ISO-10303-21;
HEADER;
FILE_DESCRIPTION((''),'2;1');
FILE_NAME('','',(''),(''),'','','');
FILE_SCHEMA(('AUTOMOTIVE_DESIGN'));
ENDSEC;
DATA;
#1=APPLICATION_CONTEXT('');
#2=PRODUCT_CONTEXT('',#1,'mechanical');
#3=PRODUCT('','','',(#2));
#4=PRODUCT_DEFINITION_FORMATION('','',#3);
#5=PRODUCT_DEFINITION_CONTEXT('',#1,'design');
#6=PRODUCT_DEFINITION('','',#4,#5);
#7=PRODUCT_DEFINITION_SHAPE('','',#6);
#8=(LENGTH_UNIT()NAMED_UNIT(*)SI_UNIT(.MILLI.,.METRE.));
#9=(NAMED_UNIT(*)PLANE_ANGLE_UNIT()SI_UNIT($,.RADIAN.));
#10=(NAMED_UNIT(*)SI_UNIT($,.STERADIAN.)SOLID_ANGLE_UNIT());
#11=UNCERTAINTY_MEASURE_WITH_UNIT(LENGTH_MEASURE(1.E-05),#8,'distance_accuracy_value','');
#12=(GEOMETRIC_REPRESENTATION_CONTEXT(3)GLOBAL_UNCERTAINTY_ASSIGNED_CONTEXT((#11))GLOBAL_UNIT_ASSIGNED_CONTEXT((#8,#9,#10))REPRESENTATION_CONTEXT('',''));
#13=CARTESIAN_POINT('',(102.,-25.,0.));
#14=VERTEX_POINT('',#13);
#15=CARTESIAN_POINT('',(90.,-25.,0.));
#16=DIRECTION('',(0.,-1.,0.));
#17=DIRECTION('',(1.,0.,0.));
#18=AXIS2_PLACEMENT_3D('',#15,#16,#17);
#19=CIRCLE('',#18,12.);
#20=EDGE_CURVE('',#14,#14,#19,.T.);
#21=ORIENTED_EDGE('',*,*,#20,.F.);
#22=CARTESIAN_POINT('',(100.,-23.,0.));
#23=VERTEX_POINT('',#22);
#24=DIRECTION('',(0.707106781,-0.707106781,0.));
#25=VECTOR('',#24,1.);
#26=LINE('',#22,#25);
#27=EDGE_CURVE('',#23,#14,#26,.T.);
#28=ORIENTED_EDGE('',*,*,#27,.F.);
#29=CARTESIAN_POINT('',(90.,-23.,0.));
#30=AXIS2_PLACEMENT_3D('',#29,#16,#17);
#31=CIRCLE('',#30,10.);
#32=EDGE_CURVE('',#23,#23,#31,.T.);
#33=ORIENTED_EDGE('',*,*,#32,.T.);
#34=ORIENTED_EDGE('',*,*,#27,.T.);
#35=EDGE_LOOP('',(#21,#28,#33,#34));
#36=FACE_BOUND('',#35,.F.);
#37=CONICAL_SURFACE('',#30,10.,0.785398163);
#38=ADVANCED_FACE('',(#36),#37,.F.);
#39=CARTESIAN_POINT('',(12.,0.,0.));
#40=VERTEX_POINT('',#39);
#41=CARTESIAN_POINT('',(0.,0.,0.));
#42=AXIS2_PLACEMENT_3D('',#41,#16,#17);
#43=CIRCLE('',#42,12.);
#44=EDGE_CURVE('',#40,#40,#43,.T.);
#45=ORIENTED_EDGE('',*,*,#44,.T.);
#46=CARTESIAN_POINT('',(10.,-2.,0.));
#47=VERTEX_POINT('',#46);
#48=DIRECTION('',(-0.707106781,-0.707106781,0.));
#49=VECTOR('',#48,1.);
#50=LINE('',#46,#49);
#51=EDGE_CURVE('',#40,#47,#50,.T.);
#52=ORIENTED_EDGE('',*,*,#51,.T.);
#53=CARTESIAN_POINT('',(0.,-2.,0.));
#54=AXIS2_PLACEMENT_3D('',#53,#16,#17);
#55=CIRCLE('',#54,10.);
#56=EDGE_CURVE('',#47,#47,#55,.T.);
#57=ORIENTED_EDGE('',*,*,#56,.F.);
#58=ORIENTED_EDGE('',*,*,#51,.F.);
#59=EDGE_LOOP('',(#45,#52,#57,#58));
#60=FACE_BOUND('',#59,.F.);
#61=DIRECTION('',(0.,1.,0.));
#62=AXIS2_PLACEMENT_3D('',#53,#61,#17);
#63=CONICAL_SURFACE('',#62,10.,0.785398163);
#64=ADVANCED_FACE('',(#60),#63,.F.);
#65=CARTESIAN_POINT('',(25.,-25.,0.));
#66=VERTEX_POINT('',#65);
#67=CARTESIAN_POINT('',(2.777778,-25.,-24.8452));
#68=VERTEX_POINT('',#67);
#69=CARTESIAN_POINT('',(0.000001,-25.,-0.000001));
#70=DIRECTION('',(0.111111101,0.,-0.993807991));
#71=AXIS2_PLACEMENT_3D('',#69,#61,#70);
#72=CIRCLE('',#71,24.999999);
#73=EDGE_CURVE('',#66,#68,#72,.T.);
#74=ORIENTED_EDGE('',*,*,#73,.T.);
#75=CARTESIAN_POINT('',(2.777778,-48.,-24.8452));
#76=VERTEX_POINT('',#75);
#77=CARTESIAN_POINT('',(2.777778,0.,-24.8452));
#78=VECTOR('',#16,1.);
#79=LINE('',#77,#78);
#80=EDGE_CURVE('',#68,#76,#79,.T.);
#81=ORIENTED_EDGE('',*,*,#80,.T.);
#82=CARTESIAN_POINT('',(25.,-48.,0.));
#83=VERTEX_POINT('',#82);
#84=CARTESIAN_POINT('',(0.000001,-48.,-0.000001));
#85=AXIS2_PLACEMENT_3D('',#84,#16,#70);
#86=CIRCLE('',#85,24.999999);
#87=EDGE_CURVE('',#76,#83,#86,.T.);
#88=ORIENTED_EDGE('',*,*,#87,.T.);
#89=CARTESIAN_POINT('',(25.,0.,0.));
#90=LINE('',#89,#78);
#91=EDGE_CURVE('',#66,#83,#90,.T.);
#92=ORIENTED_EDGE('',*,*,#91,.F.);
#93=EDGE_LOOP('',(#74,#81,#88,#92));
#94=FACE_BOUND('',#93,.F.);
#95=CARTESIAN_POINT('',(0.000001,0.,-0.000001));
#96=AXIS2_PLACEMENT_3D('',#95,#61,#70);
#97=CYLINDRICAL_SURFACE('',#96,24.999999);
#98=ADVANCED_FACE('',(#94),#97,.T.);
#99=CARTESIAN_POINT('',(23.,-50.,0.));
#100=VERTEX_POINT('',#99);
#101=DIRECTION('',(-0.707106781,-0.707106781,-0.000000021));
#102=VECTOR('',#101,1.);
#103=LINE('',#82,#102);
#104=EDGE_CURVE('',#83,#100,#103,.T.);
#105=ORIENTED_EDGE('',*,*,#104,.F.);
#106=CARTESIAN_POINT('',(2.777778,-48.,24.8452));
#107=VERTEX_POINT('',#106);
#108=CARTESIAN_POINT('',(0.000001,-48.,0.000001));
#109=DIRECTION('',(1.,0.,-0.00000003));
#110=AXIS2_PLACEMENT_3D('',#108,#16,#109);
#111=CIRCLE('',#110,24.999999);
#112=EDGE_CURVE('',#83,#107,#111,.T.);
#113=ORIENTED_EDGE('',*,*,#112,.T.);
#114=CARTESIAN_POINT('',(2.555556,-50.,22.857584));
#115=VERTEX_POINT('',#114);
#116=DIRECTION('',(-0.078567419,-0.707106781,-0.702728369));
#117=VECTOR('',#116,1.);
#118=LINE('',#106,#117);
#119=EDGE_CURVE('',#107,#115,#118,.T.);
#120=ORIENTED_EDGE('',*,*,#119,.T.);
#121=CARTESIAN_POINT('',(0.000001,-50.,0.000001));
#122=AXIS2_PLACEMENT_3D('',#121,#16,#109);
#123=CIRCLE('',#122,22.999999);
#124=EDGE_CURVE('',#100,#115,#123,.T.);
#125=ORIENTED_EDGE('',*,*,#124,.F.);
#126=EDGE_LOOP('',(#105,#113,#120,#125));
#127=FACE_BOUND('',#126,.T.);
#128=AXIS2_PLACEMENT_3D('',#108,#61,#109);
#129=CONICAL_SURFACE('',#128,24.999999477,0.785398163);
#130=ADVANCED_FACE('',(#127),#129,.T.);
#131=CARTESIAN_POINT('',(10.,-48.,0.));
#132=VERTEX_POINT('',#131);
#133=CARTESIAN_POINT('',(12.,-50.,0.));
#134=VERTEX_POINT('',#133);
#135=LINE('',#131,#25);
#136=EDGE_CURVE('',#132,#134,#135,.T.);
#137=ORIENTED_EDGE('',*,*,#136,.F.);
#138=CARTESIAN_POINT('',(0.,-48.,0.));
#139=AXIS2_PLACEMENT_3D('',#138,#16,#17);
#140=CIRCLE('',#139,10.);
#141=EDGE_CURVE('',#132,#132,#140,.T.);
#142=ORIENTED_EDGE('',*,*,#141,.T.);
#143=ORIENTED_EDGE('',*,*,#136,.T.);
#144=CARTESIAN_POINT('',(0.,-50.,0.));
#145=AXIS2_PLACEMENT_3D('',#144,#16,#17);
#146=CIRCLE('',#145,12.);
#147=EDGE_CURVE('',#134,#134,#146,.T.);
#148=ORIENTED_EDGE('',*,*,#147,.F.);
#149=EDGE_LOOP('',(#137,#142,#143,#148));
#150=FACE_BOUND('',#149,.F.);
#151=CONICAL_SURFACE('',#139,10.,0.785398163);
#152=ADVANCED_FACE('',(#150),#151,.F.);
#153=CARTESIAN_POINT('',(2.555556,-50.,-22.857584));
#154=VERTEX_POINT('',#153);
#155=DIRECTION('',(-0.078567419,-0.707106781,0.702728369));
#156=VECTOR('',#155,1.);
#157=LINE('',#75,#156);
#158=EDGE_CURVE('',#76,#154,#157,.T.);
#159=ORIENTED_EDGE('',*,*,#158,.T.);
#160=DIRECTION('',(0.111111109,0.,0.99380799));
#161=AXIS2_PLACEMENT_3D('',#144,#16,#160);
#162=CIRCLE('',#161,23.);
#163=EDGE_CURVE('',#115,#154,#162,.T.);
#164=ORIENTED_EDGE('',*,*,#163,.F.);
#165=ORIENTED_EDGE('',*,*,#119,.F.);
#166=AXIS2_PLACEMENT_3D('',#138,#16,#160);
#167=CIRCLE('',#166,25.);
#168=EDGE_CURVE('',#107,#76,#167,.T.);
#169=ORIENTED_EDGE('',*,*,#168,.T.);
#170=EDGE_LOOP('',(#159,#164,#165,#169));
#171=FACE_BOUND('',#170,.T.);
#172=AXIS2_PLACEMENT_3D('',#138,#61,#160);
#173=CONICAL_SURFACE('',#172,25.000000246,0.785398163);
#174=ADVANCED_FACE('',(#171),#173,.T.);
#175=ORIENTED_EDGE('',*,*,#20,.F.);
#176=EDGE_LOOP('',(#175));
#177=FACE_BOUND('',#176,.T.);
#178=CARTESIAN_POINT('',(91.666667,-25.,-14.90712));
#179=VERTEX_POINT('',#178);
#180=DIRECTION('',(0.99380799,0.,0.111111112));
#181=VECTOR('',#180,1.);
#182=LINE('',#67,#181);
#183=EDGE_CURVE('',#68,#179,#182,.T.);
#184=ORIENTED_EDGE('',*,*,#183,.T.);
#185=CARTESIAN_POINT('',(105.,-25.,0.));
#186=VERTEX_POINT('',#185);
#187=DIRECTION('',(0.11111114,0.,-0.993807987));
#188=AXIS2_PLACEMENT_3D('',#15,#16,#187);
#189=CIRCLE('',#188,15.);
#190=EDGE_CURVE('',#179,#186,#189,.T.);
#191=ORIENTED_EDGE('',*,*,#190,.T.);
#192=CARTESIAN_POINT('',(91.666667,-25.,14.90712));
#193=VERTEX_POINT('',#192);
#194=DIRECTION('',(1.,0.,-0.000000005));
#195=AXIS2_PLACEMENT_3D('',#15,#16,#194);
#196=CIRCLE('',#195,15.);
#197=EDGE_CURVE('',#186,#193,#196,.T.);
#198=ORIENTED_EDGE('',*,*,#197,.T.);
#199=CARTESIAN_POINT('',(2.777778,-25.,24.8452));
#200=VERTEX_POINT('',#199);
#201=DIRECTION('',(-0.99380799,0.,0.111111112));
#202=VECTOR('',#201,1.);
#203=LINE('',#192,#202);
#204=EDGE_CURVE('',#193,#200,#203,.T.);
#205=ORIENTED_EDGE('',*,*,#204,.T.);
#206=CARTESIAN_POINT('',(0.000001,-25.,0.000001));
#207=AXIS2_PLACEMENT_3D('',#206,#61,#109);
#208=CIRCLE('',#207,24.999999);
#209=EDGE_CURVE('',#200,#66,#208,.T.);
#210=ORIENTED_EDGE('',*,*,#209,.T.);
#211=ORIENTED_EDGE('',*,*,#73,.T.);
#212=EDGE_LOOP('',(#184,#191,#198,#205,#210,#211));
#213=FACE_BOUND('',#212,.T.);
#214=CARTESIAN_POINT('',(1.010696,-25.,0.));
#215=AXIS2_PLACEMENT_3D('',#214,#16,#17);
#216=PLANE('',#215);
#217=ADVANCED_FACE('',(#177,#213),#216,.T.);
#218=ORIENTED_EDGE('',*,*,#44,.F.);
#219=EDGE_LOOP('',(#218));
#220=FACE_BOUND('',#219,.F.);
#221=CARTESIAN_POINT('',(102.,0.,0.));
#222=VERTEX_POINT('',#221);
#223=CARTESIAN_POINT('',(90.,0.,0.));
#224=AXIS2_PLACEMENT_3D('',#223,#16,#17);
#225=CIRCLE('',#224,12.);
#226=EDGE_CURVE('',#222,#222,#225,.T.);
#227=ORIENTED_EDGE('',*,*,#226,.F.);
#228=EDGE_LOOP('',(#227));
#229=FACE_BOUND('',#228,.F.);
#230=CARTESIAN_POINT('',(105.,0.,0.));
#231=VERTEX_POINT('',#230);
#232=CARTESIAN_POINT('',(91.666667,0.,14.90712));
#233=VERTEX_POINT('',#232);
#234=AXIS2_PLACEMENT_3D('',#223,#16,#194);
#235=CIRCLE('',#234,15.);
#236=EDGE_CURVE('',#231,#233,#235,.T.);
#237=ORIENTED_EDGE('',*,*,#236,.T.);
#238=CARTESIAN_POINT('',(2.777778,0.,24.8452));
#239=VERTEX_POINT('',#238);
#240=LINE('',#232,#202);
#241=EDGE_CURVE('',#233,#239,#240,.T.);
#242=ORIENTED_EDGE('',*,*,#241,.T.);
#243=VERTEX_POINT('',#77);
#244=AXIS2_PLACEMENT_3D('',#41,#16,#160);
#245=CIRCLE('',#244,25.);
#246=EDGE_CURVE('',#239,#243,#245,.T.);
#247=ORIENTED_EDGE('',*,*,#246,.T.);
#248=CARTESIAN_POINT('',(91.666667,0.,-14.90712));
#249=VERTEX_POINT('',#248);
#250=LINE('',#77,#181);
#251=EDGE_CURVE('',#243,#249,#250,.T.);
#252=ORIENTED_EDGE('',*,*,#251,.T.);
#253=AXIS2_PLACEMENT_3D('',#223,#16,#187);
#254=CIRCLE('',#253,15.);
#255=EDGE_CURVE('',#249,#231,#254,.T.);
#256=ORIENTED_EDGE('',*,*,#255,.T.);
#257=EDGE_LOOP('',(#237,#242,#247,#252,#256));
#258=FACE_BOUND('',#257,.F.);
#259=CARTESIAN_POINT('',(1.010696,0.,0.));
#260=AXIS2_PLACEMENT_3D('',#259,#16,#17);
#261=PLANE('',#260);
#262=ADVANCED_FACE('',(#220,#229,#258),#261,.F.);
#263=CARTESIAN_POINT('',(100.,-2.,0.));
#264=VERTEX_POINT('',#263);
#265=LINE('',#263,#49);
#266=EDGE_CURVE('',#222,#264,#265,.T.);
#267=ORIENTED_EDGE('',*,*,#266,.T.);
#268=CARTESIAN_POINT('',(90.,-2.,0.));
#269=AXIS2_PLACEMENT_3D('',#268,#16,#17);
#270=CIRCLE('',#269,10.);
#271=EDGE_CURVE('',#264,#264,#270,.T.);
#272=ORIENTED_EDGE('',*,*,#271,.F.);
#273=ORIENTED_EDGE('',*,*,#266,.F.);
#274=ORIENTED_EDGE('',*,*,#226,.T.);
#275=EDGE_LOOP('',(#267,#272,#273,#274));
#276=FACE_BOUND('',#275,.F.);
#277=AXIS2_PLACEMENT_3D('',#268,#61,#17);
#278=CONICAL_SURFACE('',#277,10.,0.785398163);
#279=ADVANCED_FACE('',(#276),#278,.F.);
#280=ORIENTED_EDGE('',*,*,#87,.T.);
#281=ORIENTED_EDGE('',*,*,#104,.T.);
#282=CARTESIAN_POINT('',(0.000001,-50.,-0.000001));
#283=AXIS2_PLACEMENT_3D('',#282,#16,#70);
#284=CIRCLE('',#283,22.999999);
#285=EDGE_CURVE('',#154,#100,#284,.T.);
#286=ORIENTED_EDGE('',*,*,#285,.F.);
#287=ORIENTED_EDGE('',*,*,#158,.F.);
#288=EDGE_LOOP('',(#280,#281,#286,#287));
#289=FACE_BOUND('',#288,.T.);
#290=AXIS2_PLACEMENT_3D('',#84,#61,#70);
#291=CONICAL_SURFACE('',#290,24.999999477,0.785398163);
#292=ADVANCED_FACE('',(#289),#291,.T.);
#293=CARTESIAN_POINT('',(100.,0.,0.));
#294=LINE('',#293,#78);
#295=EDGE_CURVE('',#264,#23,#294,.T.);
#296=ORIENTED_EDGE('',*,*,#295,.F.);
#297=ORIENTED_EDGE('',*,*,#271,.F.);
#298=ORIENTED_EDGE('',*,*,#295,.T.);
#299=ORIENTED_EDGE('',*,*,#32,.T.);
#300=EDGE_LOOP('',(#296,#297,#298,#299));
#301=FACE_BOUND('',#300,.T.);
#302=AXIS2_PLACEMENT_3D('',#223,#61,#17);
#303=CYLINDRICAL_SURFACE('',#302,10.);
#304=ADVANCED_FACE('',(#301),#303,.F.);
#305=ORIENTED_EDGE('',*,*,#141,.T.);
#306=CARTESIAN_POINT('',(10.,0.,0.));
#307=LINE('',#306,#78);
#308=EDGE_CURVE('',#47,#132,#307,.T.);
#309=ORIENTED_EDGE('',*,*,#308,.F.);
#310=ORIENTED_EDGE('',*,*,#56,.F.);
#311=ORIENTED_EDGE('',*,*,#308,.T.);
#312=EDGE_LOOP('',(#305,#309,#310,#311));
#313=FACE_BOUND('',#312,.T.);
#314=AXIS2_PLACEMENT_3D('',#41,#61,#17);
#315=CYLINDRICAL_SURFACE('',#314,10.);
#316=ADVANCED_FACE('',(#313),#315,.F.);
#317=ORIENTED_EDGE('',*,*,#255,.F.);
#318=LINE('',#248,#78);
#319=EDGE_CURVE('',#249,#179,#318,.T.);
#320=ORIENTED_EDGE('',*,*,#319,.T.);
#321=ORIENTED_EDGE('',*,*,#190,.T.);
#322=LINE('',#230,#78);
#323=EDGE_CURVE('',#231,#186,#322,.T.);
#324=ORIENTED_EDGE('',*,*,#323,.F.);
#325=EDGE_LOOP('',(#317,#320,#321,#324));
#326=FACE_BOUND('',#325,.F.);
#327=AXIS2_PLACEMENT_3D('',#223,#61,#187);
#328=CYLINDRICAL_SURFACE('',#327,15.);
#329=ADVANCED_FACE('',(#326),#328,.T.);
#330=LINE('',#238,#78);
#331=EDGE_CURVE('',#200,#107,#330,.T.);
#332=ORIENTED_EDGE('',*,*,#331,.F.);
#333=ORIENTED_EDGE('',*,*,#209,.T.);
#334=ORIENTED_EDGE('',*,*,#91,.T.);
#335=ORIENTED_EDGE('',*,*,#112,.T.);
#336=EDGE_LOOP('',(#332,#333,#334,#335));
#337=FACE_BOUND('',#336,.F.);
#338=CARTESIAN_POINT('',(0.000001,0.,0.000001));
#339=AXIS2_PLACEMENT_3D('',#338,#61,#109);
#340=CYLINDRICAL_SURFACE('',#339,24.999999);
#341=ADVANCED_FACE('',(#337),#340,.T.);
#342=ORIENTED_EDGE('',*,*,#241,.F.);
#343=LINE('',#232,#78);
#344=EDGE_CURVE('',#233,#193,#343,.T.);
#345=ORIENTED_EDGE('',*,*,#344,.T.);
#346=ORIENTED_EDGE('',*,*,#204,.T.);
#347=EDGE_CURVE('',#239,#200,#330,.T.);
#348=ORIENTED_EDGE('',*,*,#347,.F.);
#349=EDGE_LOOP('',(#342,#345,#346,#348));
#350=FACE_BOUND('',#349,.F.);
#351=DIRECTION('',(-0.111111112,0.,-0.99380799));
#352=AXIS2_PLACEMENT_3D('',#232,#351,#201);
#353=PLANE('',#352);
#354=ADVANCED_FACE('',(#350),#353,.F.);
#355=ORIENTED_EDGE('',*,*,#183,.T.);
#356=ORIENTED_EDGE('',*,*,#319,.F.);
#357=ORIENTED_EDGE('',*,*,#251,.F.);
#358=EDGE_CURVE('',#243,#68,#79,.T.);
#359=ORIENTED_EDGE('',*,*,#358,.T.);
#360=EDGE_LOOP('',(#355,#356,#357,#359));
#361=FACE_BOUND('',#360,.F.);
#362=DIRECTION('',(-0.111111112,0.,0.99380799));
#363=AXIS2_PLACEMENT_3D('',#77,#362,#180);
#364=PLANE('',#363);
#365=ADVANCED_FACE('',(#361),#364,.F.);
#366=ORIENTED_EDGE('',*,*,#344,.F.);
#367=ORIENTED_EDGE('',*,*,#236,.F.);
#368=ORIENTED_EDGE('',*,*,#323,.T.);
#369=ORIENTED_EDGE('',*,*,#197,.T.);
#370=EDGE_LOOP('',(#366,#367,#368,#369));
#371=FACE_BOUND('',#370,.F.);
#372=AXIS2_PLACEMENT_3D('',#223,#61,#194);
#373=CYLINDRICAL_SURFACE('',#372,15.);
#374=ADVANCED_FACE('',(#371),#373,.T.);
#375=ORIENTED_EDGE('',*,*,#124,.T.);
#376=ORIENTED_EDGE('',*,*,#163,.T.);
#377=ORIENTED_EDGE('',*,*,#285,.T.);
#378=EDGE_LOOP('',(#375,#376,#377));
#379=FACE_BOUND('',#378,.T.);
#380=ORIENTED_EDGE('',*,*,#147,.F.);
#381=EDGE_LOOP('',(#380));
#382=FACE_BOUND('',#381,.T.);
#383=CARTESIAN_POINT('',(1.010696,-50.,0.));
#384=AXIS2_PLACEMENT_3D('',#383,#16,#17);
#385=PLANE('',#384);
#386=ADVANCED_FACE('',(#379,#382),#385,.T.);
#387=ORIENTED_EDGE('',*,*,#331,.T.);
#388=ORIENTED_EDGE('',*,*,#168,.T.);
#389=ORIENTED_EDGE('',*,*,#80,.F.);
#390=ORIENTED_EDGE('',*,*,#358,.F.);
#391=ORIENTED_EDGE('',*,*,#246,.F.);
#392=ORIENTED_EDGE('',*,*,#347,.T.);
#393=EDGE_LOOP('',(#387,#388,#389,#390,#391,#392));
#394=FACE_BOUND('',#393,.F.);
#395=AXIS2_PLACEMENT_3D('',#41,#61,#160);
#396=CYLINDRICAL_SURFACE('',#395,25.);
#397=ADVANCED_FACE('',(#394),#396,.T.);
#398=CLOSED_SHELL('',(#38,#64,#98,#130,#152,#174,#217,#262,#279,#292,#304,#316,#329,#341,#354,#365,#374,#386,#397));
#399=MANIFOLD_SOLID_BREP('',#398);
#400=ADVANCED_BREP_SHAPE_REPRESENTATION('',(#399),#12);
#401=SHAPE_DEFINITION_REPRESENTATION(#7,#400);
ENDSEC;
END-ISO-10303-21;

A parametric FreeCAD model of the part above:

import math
import FreeCAD as App
import Part
import Sketcher

V = App.Vector


def edges_at(feature, points):
    """Names of the edges that pass closest to the given points."""
    edges = feature.Shape.Edges
    near = lambda p: min(range(len(edges)), key=lambda i: edges[i].distToShape(Part.Vertex(*p))[0])
    return sorted({f"Edge{near(p) + 1}" for p in points})

doc = App.newDocument("Part")
params = doc.addObject("Spreadsheet::Sheet", "Params")
for row, (alias, value) in enumerate([
    ("sketch1_diameter", "20 mm"),
    ("sketch1_radius", "25 mm"),
    ("sketch1_radius2", "15 mm"),
    ("pad1_length", "25 mm"),
    ("sketch2_diameter", "20 mm"),
    ("sketch2_radius", "24.999999 mm"),
    ("pad2_length", "50 mm"),
    ("chamfer_size", "2 mm"),
], start=1):
    params.set(f"A{row}", alias)
    params.set(f"B{row}", "=" + value)
    params.setAlias(f"B{row}", alias)

body = doc.addObject("PartDesign::Body", "Body")

sketch1 = doc.addObject("Sketcher::SketchObject", "Sketch")
body.addObject(sketch1)
sketch1.AttachmentSupport = (doc.XZ_Plane, [""])
sketch1.MapMode = "FlatFace"
sketch1.addGeometry([
    Part.ArcOfCircle(Part.Circle(V(0, 0, 0), V(0, 0, 1), 25), math.radians(83.62063), math.radians(276.37937)),
    Part.LineSegment(V(2.777778, -24.8452, 0), V(91.666667, -14.90712, 0)),
    Part.ArcOfCircle(Part.Circle(V(90, 0, 0), V(0, 0, 1), 15), math.radians(-83.620628), math.radians(0)),
    Part.ArcOfCircle(Part.Circle(V(90, 0, 0), V(0, 0, 1), 15), math.radians(0), math.radians(83.620628)),
    Part.LineSegment(V(91.666667, 14.90712, 0), V(2.777778, 24.8452, 0)),
    Part.Circle(V(0, 0, 0), V(0, 0, 1), 10),
    Part.Circle(V(90, 0, 0), V(0, 0, 1), 10),
], False)
sketch1.addConstraint([
    Sketcher.Constraint("Tangent", 0, 2, 1, 1),
    Sketcher.Constraint("Tangent", 1, 2, 2, 1),
    Sketcher.Constraint("Tangent", 2, 2, 3, 1),
    Sketcher.Constraint("Tangent", 3, 2, 4, 1),
    Sketcher.Constraint("Tangent", 4, 2, 0, 1),
    Sketcher.Constraint("Coincident", 0, 3, -1, 1),
    Sketcher.Constraint("Coincident", 5, 3, -1, 1),
    Sketcher.Constraint("Coincident", 6, 3, 2, 3),
    Sketcher.Constraint("Equal", 2, 3),
    Sketcher.Constraint("Equal", 5, 6),
    Sketcher.Constraint("PointOnObject", 2, 3, -1),
    Sketcher.Constraint("PointOnObject", 2, 2, -1),
    Sketcher.Constraint("Diameter", 5, 20.0),
    Sketcher.Constraint("Radius", 0, 25.0),
    Sketcher.Constraint("Radius", 2, 15.0),
    Sketcher.Constraint("DistanceX", -1, 1, 2, 3, 90.0),
])
sketch1.setExpression("Constraints[12]", "Params.sketch1_diameter")
sketch1.setExpression("Constraints[13]", "Params.sketch1_radius")
sketch1.setExpression("Constraints[14]", "Params.sketch1_radius2")
pad1 = doc.addObject("PartDesign::Pad", "Pad")
body.addObject(pad1)
pad1.Profile = sketch1
pad1.setExpression("Length", "Params.pad1_length")

sketch2 = doc.addObject("Sketcher::SketchObject", "Sketch001")
body.addObject(sketch2)
sketch2.AttachmentSupport = (doc.XZ_Plane, [""])
sketch2.MapMode = "FlatFace"
sketch2.addGeometry([
    Part.ArcOfCircle(Part.Circle(V(0.000001, -0.000001, 0), V(0, 0, 1), 24.999999), math.radians(-83.62063), math.radians(0.000002)),
    Part.ArcOfCircle(Part.Circle(V(0.000001, 0.000001, 0), V(0, 0, 1), 24.999999), math.radians(-0.000002), math.radians(83.62063)),
    Part.ArcOfCircle(Part.Circle(V(0, 0, 0), V(0, 0, 1), 25), math.radians(83.62063), math.radians(276.37937)),
    Part.Circle(V(0, 0, 0), V(0, 0, 1), 10),
], False)
sketch2.addConstraint([
    Sketcher.Constraint("Tangent", 0, 2, 1, 1),
    Sketcher.Constraint("Tangent", 1, 2, 2, 1),
    Sketcher.Constraint("Tangent", 2, 2, 0, 1),
    Sketcher.Constraint("Coincident", 0, 3, -1, 1),
    Sketcher.Constraint("Coincident", 3, 3, -1, 1),
    Sketcher.Constraint("PointOnObject", 0, 2, -1),
    Sketcher.Constraint("Vertical", 1, 2, 2, 2),
    Sketcher.Constraint("Diameter", 3, 20.0),
    Sketcher.Constraint("Radius", 0, 24.999999),
    Sketcher.Constraint("DistanceY", -1, 1, 1, 2, 24.8452),
])
sketch2.setExpression("Constraints[7]", "Params.sketch2_diameter")
sketch2.setExpression("Constraints[8]", "Params.sketch2_radius")
pad2 = doc.addObject("PartDesign::Pad", "Pad001")
body.addObject(pad2)
pad2.Profile = sketch2
pad2.setExpression("Length", "Params.pad2_length")
doc.recompute()

chamfer = doc.addObject("PartDesign::Chamfer", "Chamfer")
body.addObject(chamfer)
chamfer.Base = (pad2, edges_at(pad2, [
    (-10, -50, 0),
    (-10, 0, 0),
    (-25, -50, 0),
    (80, 0, 0),
    (80, -25, 0),
]))
chamfer.setExpression("Size", "Params.chamfer_size")

doc.recompute()
